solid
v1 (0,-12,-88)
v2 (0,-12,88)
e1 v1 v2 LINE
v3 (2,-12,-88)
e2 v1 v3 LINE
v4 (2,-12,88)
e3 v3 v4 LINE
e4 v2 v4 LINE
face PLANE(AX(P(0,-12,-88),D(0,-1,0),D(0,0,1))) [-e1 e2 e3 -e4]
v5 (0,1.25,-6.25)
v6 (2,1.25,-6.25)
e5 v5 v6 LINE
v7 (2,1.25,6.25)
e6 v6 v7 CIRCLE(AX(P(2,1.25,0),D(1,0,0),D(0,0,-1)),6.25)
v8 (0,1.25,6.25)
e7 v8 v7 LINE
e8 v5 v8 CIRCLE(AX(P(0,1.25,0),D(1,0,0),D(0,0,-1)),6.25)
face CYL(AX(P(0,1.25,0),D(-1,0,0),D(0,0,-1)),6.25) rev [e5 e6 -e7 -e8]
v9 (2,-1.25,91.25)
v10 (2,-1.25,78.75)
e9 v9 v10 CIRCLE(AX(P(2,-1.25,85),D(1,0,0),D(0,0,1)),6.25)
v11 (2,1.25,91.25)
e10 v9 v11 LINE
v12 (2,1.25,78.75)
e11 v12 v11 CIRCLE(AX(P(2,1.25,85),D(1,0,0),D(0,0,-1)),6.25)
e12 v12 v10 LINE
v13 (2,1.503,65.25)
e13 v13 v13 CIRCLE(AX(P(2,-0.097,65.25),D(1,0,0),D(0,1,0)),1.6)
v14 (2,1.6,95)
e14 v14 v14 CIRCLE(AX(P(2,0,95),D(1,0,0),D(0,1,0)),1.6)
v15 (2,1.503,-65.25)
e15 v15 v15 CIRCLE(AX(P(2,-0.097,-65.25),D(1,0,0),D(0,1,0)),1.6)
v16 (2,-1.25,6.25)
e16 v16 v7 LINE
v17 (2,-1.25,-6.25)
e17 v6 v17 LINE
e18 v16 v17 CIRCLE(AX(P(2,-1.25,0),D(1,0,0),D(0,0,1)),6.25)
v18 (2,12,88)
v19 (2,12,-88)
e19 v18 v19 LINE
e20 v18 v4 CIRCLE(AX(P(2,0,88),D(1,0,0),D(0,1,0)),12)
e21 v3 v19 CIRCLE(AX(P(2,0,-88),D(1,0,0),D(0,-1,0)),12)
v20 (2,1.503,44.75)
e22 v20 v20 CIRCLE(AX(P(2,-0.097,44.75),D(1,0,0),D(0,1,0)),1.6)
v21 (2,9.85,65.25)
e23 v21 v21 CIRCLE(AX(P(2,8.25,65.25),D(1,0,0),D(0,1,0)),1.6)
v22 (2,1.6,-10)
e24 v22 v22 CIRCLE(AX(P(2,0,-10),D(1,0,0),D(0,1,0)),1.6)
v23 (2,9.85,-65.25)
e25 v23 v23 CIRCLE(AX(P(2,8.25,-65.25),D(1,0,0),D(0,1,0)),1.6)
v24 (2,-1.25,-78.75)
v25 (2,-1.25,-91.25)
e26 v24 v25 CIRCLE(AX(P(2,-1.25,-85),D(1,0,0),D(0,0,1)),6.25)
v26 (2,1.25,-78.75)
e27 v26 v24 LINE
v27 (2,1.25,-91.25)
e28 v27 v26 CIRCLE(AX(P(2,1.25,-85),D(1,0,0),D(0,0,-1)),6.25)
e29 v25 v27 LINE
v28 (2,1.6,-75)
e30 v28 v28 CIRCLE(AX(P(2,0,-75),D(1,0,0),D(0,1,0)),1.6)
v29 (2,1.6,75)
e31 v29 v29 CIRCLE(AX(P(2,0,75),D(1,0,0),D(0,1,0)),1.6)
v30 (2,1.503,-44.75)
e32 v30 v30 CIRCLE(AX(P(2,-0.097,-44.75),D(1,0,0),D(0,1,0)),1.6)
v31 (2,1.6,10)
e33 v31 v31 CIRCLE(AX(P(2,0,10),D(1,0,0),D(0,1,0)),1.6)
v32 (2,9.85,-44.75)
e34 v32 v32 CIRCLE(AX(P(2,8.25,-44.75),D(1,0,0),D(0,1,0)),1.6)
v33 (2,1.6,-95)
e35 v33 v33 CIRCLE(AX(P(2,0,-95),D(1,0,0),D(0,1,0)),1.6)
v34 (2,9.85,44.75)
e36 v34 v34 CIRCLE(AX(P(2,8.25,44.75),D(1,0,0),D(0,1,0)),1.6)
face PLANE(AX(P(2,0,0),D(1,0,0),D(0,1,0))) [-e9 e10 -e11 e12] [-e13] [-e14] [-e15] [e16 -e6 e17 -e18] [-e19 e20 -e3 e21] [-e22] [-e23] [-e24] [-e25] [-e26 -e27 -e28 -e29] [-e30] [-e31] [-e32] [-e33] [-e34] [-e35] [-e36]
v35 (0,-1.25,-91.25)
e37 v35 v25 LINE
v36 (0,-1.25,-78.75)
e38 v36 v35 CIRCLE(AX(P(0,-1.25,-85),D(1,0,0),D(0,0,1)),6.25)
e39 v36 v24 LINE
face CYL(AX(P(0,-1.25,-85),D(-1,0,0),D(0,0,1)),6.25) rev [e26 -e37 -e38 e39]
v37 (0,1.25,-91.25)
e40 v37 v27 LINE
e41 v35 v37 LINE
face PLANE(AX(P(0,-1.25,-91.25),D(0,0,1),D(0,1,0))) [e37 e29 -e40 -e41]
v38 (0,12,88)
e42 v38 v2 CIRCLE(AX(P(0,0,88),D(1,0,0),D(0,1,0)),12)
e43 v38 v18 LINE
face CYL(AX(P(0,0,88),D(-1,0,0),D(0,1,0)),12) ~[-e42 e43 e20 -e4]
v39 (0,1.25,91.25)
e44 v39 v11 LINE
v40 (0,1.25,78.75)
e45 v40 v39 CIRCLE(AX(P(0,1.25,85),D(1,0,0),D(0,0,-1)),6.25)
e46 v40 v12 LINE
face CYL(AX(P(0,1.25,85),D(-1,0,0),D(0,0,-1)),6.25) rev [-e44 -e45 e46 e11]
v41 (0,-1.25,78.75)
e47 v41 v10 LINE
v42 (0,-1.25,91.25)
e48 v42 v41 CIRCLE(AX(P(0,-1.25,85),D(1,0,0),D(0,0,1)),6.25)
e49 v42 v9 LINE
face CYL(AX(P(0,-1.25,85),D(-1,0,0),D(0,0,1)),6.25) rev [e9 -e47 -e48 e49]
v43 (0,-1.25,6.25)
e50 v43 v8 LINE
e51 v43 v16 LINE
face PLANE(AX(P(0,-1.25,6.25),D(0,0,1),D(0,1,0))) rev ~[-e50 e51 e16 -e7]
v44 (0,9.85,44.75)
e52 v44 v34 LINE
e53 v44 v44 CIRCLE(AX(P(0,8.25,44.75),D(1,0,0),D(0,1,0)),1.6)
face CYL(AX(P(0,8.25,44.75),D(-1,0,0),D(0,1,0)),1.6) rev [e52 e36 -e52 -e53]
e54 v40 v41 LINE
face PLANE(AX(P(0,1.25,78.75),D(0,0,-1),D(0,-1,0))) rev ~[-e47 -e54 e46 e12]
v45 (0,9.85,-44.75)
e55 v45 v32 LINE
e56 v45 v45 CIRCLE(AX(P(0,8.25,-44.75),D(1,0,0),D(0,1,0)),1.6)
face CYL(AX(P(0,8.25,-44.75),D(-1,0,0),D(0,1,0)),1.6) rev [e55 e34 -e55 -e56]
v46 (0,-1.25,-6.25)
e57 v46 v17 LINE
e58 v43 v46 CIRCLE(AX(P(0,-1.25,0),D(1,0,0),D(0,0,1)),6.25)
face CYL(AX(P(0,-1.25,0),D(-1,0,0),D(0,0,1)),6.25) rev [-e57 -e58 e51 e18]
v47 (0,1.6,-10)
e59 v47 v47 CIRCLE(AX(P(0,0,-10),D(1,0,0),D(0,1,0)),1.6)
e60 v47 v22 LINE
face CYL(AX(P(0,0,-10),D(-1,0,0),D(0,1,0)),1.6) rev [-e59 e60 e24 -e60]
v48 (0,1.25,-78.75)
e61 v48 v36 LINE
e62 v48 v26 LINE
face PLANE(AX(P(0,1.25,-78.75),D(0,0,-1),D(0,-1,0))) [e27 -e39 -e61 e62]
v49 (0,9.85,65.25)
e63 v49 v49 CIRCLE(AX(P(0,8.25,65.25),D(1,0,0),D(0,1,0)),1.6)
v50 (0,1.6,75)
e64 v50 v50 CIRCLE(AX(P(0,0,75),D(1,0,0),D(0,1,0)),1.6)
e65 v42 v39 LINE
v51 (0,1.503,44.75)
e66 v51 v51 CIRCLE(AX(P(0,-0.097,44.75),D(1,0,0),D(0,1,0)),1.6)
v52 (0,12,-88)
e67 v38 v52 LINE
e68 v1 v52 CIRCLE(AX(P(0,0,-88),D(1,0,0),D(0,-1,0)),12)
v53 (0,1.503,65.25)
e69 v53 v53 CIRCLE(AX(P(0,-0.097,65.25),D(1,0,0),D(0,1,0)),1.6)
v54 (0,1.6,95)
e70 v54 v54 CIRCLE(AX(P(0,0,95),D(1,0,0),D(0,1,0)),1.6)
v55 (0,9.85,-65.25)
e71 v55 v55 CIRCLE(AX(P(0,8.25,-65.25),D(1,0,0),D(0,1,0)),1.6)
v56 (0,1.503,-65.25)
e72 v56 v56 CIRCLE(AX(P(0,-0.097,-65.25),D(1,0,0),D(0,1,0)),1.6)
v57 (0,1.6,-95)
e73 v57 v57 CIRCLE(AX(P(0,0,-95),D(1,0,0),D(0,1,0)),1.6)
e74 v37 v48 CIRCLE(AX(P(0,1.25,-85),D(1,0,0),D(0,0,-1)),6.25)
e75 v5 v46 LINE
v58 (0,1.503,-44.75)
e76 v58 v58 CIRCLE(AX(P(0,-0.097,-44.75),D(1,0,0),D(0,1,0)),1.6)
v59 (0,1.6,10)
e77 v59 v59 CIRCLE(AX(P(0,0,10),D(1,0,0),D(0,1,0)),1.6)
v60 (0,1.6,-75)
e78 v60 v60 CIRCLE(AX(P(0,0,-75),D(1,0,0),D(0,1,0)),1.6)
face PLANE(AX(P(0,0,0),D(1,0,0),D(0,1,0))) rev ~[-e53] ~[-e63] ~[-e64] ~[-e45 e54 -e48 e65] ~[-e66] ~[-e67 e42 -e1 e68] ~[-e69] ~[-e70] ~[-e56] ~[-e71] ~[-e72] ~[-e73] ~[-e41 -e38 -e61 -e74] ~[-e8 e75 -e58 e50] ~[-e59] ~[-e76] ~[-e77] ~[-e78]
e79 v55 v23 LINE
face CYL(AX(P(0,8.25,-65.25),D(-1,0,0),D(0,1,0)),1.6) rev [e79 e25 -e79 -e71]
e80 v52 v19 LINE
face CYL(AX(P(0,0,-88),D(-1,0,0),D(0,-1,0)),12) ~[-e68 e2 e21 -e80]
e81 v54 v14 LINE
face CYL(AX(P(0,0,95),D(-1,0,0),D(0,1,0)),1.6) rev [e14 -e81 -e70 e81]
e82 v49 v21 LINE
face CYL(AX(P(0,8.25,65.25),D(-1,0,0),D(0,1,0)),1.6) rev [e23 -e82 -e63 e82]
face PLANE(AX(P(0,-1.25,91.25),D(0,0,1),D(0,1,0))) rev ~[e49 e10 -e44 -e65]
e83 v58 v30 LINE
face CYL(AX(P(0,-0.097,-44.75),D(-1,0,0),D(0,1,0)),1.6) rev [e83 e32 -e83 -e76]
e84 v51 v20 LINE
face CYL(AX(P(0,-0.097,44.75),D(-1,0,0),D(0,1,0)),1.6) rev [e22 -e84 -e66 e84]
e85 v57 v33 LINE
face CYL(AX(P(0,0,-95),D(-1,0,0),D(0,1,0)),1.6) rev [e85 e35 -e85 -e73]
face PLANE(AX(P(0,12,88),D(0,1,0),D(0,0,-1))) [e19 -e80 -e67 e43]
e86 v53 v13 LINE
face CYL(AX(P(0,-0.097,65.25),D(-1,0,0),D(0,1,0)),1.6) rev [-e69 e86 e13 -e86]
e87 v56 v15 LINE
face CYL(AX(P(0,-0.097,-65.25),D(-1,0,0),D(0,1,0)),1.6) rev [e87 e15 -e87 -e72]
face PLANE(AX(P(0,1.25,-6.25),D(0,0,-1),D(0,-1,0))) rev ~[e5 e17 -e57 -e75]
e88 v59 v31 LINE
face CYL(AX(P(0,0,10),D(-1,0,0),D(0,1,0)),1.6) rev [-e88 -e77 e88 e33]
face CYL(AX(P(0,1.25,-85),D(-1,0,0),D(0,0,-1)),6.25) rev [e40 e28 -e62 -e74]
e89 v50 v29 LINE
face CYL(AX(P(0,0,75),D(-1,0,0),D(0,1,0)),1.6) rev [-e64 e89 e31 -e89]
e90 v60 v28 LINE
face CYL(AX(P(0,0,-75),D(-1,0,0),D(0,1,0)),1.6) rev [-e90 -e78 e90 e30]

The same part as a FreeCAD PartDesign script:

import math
import FreeCAD as App
import Part
import Sketcher

V = App.Vector

doc = App.newDocument("Part")
body = doc.addObject("PartDesign::Body", "Body")

sketch1 = doc.addObject("Sketcher::SketchObject", "Sketch")
body.addObject(sketch1)
sketch1.AttachmentSupport = (doc.YZ_Plane, [""])
sketch1.MapMode = "FlatFace"
sketch1.addGeometry([
    Part.LineSegment(V(12, -88, 0), V(12, 88, 0)),
    Part.ArcOfCircle(Part.Circle(V(0, 88, 0), V(0, 0, 1), 12), math.radians(0), math.radians(180)),
    Part.LineSegment(V(-12, 88, 0), V(-12, -88, 0)),
    Part.ArcOfCircle(Part.Circle(V(0, -88, 0), V(0, 0, 1), 12), math.radians(180), math.radians(360)),
    Part.Circle(V(-0.1, -65.2, 0), V(0, 0, 1), 1.6),
    Part.Circle(V(-0.1, -44.8, 0), V(0, 0, 1), 1.6),
    Part.Circle(V(0, -95, 0), V(0, 0, 1), 1.6),
    Part.LineSegment(V(1.2, -91.2, 0), V(-1.2, -91.2, 0)),
    Part.ArcOfCircle(Part.Circle(V(-1.2, -85, 0), V(0, 0, 1), 6.2), math.radians(90), math.radians(270)),
    Part.LineSegment(V(-1.2, -78.8, 0), V(1.2, -78.8, 0)),
    Part.ArcOfCircle(Part.Circle(V(1.2, -85, 0), V(0, 0, 1), 6.2), math.radians(-90), math.radians(90)),
    Part.Circle(V(0, -75, 0), V(0, 0, 1), 1.6),
    Part.Circle(V(8.2, -65.2, 0), V(0, 0, 1), 1.6),
    Part.Circle(V(0, -10, 0), V(0, 0, 1), 1.6),
    Part.Circle(V(8.2, -44.8, 0), V(0, 0, 1), 1.6),
    Part.Circle(V(-0.1, 44.8, 0), V(0, 0, 1), 1.6),
    Part.Circle(V(-0.1, 65.2, 0), V(0, 0, 1), 1.6),
    Part.ArcOfCircle(Part.Circle(V(-1.2, 0, 0), V(0, 0, 1), 6.2), math.radians(90), math.radians(270)),
    Part.LineSegment(V(-1.2, 6.2, 0), V(1.2, 6.2, 0)),
    Part.ArcOfCircle(Part.Circle(V(1.2, 0, 0), V(0, 0, 1), 6.2), math.radians(-90), math.radians(90)),
    Part.LineSegment(V(1.2, -6.2, 0), V(-1.2, -6.2, 0)),
    Part.Circle(V(0, 10, 0), V(0, 0, 1), 1.6),
    Part.Circle(V(8.2, 44.8, 0), V(0, 0, 1), 1.6),
    Part.Circle(V(0, 75, 0), V(0, 0, 1), 1.6),
    Part.ArcOfCircle(Part.Circle(V(-1.2, 85, 0), V(0, 0, 1), 6.2), math.radians(90), math.radians(270)),
    Part.LineSegment(V(-1.2, 91.2, 0), V(1.2, 91.2, 0)),
    Part.ArcOfCircle(Part.Circle(V(1.2, 85, 0), V(0, 0, 1), 6.2), math.radians(-90), math.radians(90)),
    Part.LineSegment(V(1.2, 78.8, 0), V(-1.2, 78.8, 0)),
    Part.Circle(V(0, 95, 0), V(0, 0, 1), 1.6),
    Part.Circle(V(8.2, 65.2, 0), V(0, 0, 1), 1.6),
], False)
sketch1.addConstraint([
    Sketcher.Constraint("Tangent", 0, 2, 1, 1),
    Sketcher.Constraint("Tangent", 1, 2, 2, 1),
    Sketcher.Constraint("Tangent", 2, 2, 3, 1),
    Sketcher.Constraint("Tangent", 3, 2, 0, 1),
    Sketcher.Constraint("Tangent", 7, 2, 8, 2),
    Sketcher.Constraint("Tangent", 8, 1, 9, 1),
    Sketcher.Constraint("Tangent", 9, 2, 10, 2),
    Sketcher.Constraint("Tangent", 10, 1, 7, 1),
    Sketcher.Constraint("Tangent", 17, 1, 18, 1),
    Sketcher.Constraint("Tangent", 18, 2, 19, 2),
    Sketcher.Constraint("Tangent", 19, 1, 20, 1),
    Sketcher.Constraint("Tangent", 20, 2, 17, 2),
    Sketcher.Constraint("Tangent", 24, 1, 25, 1),
    Sketcher.Constraint("Tangent", 25, 2, 26, 2),
    Sketcher.Constraint("Tangent", 26, 1, 27, 1),
    Sketcher.Constraint("Tangent", 27, 2, 24, 2),
    Sketcher.Constraint("Vertical", 0),
    Sketcher.Constraint("Vertical", 2),
    Sketcher.Constraint("Horizontal", 7),
    Sketcher.Constraint("Horizontal", 9),
    Sketcher.Constraint("Horizontal", 18),
    Sketcher.Constraint("Horizontal", 20),
    Sketcher.Constraint("Horizontal", 25),
    Sketcher.Constraint("Horizontal", 27),
    Sketcher.Constraint("Equal", 4, 5),
    Sketcher.Constraint("Equal", 5, 6),
    Sketcher.Constraint("Equal", 6, 11),
    Sketcher.Constraint("Equal", 11, 12),
    Sketcher.Constraint("Equal", 12, 13),
    Sketcher.Constraint("Equal", 13, 14),
    Sketcher.Constraint("Equal", 14, 15),
    Sketcher.Constraint("Equal", 15, 16),
    Sketcher.Constraint("Equal", 10, 17),
    Sketcher.Constraint("Equal", 16, 21),
    Sketcher.Constraint("Equal", 21, 22),
    Sketcher.Constraint("Equal", 22, 23),
    Sketcher.Constraint("Equal", 19, 24),
    Sketcher.Constraint("Equal", 23, 28),
    Sketcher.Constraint("Equal", 28, 29),
    Sketcher.Constraint("Symmetric", 1, 3, 3, 3, -1, 1),
    Sketcher.Constraint("Symmetric", 17, 3, 19, 3, -1, 1),
    Sketcher.Constraint("Symmetric", 13, 3, 21, 3, -1, 1),
    Sketcher.Constraint("Symmetric", 11, 3, 23, 3, -1, 1),
    Sketcher.Constraint("Symmetric", 10, 3, 24, 3, -1, 1),
    Sketcher.Constraint("Symmetric", 6, 3, 28, 3, -1, 1),
    Sketcher.Constraint("Symmetric", 5, 3, 15, 3, -1),
    Sketcher.Constraint("Symmetric", 4, 3, 16, 3, -1),
    Sketcher.Constraint("Symmetric", 14, 3, 22, 3, -1),
    Sketcher.Constraint("Symmetric", 12, 3, 29, 3, -1),
    Sketcher.Constraint("PointOnObject", 6, 3, -2),
    Sketcher.Constraint("PointOnObject", 11, 3, -2),
    Sketcher.Constraint("PointOnObject", 13, 3, -2),
    Sketcher.Constraint("Horizontal", 4, 3, 12, 3),
    Sketcher.Constraint("Horizontal", 5, 3, 14, 3),
    Sketcher.Constraint("Vertical", 4, 3, 5, 3),
    Sketcher.Constraint("Vertical", 12, 3, 14, 3),
    Sketcher.Constraint("Vertical", 8, 3, 17, 3),
    Sketcher.Constraint("Vertical", 10, 3, 19, 3),
    Sketcher.Constraint("Vertical", 19, 3, 26, 3),
    Sketcher.Constraint("Diameter", 4, 3.2),
    Sketcher.Constraint("Radius", 1, 12.0),
    Sketcher.Constraint("DistanceY", 0, 1, 0, 2, 176.0),
    Sketcher.Constraint("Radius", 8, 6.25),
    Sketcher.Constraint("DistanceX", 7, 2, 7, 1, 2.5),
    Sketcher.Constraint("DistanceY", 6, 3, -1, 1, 95.0),
    Sketcher.Constraint("DistanceY", 8, 3, -1, 1, 85.0),
    Sketcher.Constraint("DistanceY", 11, 3, -1, 1, 75.0),
    Sketcher.Constraint("DistanceY", 13, 3, -1, 1, 10.0),
    Sketcher.Constraint("DistanceX", 4, 3, 12, 3, 8.347),
    Sketcher.Constraint("DistanceX", 10, 3, 12, 3, 7.0),
    Sketcher.Constraint("DistanceY", 4, 3, 15, 3, 110.0),
    Sketcher.Constraint("DistanceY", 4, 3, 5, 3, 20.5),
])
pad1 = doc.addObject("PartDesign::Pad", "Pad")
body.addObject(pad1)
pad1.Profile = sketch1
pad1.Length = 2

doc.recompute()
